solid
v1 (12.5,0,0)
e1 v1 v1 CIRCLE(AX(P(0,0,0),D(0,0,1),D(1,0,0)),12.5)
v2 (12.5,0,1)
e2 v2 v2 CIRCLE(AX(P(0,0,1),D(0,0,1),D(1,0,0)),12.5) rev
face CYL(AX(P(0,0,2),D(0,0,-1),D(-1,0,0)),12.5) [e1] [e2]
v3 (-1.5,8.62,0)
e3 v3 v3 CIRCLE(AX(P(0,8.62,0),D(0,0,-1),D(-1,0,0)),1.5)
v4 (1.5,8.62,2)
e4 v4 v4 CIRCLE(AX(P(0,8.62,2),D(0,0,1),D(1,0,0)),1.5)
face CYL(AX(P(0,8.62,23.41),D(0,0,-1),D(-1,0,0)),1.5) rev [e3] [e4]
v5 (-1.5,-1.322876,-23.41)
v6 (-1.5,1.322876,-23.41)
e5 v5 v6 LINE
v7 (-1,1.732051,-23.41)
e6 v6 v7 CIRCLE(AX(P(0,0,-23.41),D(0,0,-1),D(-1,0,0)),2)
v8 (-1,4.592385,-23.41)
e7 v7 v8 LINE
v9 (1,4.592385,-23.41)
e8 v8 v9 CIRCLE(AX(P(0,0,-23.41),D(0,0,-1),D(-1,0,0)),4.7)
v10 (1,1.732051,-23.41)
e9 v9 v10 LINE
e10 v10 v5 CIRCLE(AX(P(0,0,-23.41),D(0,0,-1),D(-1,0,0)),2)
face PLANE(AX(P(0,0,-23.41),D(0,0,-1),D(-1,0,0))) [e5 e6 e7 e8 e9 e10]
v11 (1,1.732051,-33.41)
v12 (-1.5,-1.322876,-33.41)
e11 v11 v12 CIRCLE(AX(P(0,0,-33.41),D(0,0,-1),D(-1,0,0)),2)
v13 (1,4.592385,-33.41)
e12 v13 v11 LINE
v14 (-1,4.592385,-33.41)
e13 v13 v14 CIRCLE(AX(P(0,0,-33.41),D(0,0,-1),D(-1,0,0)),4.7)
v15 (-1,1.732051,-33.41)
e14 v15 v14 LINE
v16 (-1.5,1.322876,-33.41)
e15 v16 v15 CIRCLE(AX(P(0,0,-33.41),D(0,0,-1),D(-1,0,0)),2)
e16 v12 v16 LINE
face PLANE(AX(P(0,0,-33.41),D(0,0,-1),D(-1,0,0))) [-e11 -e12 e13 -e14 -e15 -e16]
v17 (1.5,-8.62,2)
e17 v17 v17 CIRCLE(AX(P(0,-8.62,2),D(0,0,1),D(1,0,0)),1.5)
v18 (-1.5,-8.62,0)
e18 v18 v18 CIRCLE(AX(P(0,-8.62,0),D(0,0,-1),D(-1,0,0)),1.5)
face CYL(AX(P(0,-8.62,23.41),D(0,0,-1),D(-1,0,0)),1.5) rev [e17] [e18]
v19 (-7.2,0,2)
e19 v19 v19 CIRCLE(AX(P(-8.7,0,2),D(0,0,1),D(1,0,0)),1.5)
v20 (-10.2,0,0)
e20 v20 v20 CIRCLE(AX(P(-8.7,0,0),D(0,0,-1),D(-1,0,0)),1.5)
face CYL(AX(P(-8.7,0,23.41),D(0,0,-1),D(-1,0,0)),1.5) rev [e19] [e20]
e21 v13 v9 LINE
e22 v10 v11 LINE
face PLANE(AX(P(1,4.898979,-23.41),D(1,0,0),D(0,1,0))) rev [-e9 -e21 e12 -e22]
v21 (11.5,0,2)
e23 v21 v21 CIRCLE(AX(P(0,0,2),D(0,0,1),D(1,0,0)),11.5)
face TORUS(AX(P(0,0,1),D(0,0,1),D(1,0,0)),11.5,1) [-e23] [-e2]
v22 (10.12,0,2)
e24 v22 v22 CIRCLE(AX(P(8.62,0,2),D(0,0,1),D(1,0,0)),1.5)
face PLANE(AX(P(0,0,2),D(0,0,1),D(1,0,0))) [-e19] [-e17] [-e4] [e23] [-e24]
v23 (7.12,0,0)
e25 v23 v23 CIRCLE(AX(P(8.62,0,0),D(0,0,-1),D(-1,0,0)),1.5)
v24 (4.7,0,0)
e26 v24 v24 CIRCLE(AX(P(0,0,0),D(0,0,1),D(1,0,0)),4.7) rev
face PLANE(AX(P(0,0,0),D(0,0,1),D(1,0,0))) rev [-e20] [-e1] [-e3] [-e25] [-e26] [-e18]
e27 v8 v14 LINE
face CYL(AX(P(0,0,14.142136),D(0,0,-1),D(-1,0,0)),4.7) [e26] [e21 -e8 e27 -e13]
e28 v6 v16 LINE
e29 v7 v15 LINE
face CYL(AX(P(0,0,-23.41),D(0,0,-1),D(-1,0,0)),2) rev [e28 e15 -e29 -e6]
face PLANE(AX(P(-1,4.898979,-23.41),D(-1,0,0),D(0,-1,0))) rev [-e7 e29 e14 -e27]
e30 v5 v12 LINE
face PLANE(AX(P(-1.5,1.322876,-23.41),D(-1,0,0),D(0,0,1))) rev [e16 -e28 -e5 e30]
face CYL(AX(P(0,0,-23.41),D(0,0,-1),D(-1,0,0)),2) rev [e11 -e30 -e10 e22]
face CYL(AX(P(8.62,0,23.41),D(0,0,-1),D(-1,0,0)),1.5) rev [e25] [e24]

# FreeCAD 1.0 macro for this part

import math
import FreeCAD as App
import Part
import Sketcher

V = App.Vector


def edges_at(feature, points):
    """Names of the edges that pass closest to the given points."""
    edges = feature.Shape.Edges
    near = lambda p: min(range(len(edges)), key=lambda i: edges[i].distToShape(Part.Vertex(*p))[0])
    return sorted({f"Edge{near(p) + 1}" for p in points})

doc = App.newDocument("Part")
params = doc.addObject("Spreadsheet::Sheet", "Params")
for row, (alias, value) in enumerate([
    ("sketch1_diameter", "25 mm"),
    ("pad1_length", "2 mm"),
    ("fillet_radius", "1 mm"),
    ("sketch2_diameter", "10 mm"),
    ("pad2_length", "33.41 mm"),
    ("sketch3_diameter", "3 mm"),
    ("pocket1_length", "23.41 mm"),
    ("sketch4_radius", "2 mm"),
    ("sketch4_radius2", "5 mm"),
    ("pocket2_length", "10 mm"),
    ("sketch5_diameter", "10 mm"),
    ("sketch5_diameter2", "9.4 mm"),
    ("pocket3_length", "33.41 mm"),
], start=1):
    params.set(f"A{row}", alias)
    params.set(f"B{row}", "=" + value)
    params.setAlias(f"B{row}", alias)

body = doc.addObject("PartDesign::Body", "Body")

sketch1 = body.newObject("Sketcher::SketchObject", "Sketch")
sketch1.AttachmentSupport = (doc.getObject("XY_Plane"), [""])
sketch1.MapMode = "FlatFace"
sketch1.addGeometry(Part.Circle(V(0, 0, 0), V(0, 0, 1), 12), False)
sketch1.addConstraint(Sketcher.Constraint("Coincident", 0, 3, -1, 1))
sketch1.addConstraint(Sketcher.Constraint("Diameter", 0, 25.0))
sketch1.setExpression("Constraints[1]", "Params.sketch1_diameter")
pad1 = body.newObject("PartDesign::Pad", "Pad")
pad1.Profile = sketch1
pad1.setExpression("Length", "Params.pad1_length")
doc.recompute()

fillet = body.newObject("PartDesign::Fillet", "Fillet")
fillet.Base = (pad1, edges_at(pad1, [(-12.5, 0, 2)]))
fillet.setExpression("Radius", "Params.fillet_radius")

sketch2 = body.newObject("Sketcher::SketchObject", "Sketch001")
sketch2.AttachmentSupport = (doc.getObject("XY_Plane"), [""])
sketch2.MapMode = "FlatFace"
sketch2.addGeometry(Part.Circle(V(0, 0, 0), V(0, 0, 1), 5), False)
sketch2.addConstraint(Sketcher.Constraint("Coincident", 0, 3, -1, 1))
sketch2.addConstraint(Sketcher.Constraint("Diameter", 0, 10.0))
sketch2.setExpression("Constraints[1]", "Params.sketch2_diameter")
pad2 = body.newObject("PartDesign::Pad", "Pad001")
pad2.Profile = sketch2
pad2.setExpression("Length", "Params.pad2_length")
pad2.Reversed = True

sketch3 = body.newObject("Sketcher::SketchObject", "Sketch002")
sketch3.AttachmentSupport = (doc.getObject("XY_Plane"), [""])
sketch3.MapMode = "FlatFace"
sketch3.addGeometry(Part.Circle(V(0, 8.6, 0), V(0, 0, 1), 1.5), False)
sketch3.addGeometry(Part.Circle(V(8.6, 0, 0), V(0, 0, 1), 1.5), False)
sketch3.addGeometry(Part.Circle(V(-8.7, 0, 0), V(0, 0, 1), 1.5), False)
sketch3.addGeometry(Part.Circle(V(0, -8.6, 0), V(0, 0, 1), 1.5), False)
sketch3.addConstraint(Sketcher.Constraint("Equal", 0, 1))
sketch3.addConstraint(Sketcher.Constraint("Equal", 1, 2))
sketch3.addConstraint(Sketcher.Constraint("Equal", 2, 3))
sketch3.addConstraint(Sketcher.Constraint("Symmetric", 0, 3, 3, 3, -1, 1))
sketch3.addConstraint(Sketcher.Constraint("PointOnObject", 0, 3, -2))
sketch3.addConstraint(Sketcher.Constraint("PointOnObject", 1, 3, -1))
sketch3.addConstraint(Sketcher.Constraint("PointOnObject", 2, 3, -1))
sketch3.addConstraint(Sketcher.Constraint("Diameter", 0, 3.0))
sketch3.addConstraint(Sketcher.Constraint("DistanceX", 2, 3, -1, 1, 8.7))
sketch3.addConstraint(Sketcher.Constraint("DistanceY", -1, 1, 0, 3, 8.62))
sketch3.addConstraint(Sketcher.Constraint("DistanceX", -1, 1, 1, 3, 8.62))
sketch3.setExpression("Constraints[7]", "Params.sketch3_diameter")
pocket1 = body.newObject("PartDesign::Pocket", "Pocket")
pocket1.Profile = sketch3
pocket1.setExpression("Length", "Params.pocket1_length")
pocket1.Reversed = True

sketch4 = body.newObject("Sketcher::SketchObject", "Sketch003")
sketch4.AttachmentSupport = (doc.getObject("XY_Plane"), [""])
sketch4.MapMode = "FlatFace"
sketch4.AttachmentOffset = App.Placement(V(0, 0, -23.41), App.Rotation())
sketch4.addGeometry(Part.LineSegment(V(1, 4.9, 0), V(1, 1.7, 0)), False)
sketch4.addGeometry(Part.ArcOfCircle(Part.Circle(V(0, 0, 0), V(0, 0, 1), 2), math.radians(-139), math.radians(60)), False)
sketch4.addGeometry(Part.LineSegment(V(-1.5, -1.3, 0), V(-1.5, 1.3, 0)), False)
sketch4.addGeometry(Part.ArcOfCircle(Part.Circle(V(0, 0, 0), V(0, 0, 1), 2), math.radians(120), math.radians(138.59)), False)
sketch4.addGeometry(Part.LineSegment(V(-1, 1.7, 0), V(-1, 4.9, 0)), False)
sketch4.addGeometry(Part.ArcOfCircle(Part.Circle(V(0, 0, 0), V(0, 0, 1), 5), math.radians(78), math.radians(102)), False)
sketch4.addConstraint(Sketcher.Constraint("Coincident", 0, 2, 1, 2))
sketch4.addConstraint(Sketcher.Constraint("Coincident", 1, 1, 2, 1))
sketch4.addConstraint(Sketcher.Constraint("Coincident", 2, 2, 3, 2))
sketch4.addConstraint(Sketcher.Constraint("Coincident", 3, 1, 4, 1))
sketch4.addConstraint(Sketcher.Constraint("Coincident", 4, 2, 5, 2))
sketch4.addConstraint(Sketcher.Constraint("Coincident", 5, 1, 0, 1))
sketch4.addConstraint(Sketcher.Constraint("Vertical", 0))
sketch4.addConstraint(Sketcher.Constraint("Vertical", 2))
sketch4.addConstraint(Sketcher.Constraint("Vertical", 4))
sketch4.addConstraint(Sketcher.Constraint("Coincident", 1, 3, -1, 1))
sketch4.addConstraint(Sketcher.Constraint("Coincident", 3, 3, -1, 1))
sketch4.addConstraint(Sketcher.Constraint("Coincident", 5, 3, -1, 1))
sketch4.addConstraint(Sketcher.Constraint("Equal", 1, 3))
sketch4.addConstraint(Sketcher.Constraint("Horizontal", 0, 2, 3, 1))
sketch4.addConstraint(Sketcher.Constraint("Radius", 1, 2.0))
sketch4.addConstraint(Sketcher.Constraint("Radius", 5, 5.0))
sketch4.addConstraint(Sketcher.Constraint("DistanceX", -1, 1, 0, 2, 1.0))
sketch4.addConstraint(Sketcher.Constraint("DistanceX", 1, 1, -1, 1, 1.5))
sketch4.setExpression("Constraints[14]", "Params.sketch4_radius")
sketch4.setExpression("Constraints[15]", "Params.sketch4_radius2")
pocket2 = body.newObject("PartDesign::Pocket", "Pocket001")
pocket2.Profile = sketch4
pocket2.setExpression("Length", "Params.pocket2_length")

sketch5 = body.newObject("Sketcher::SketchObject", "Sketch004")
sketch5.AttachmentSupport = (doc.getObject("XY_Plane"), [""])
sketch5.MapMode = "FlatFace"
sketch5.addGeometry(Part.Circle(V(0, 0, 0), V(0, 0, 1), 5), False)
sketch5.addGeometry(Part.Circle(V(0, 0, 0), V(0, 0, 1), 4.7), False)
sketch5.addConstraint(Sketcher.Constraint("Coincident", 0, 3, -1, 1))
sketch5.addConstraint(Sketcher.Constraint("Coincident", 1, 3, -1, 1))
sketch5.addConstraint(Sketcher.Constraint("Diameter", 0, 10.0))
sketch5.addConstraint(Sketcher.Constraint("Diameter", 1, 9.4))
sketch5.setExpression("Constraints[2]", "Params.sketch5_diameter")
sketch5.setExpression("Constraints[3]", "Params.sketch5_diameter2")
pocket3 = body.newObject("PartDesign::Pocket", "Pocket002")
pocket3.Profile = sketch5
pocket3.setExpression("Length", "Params.pocket3_length")

doc.recompute()
